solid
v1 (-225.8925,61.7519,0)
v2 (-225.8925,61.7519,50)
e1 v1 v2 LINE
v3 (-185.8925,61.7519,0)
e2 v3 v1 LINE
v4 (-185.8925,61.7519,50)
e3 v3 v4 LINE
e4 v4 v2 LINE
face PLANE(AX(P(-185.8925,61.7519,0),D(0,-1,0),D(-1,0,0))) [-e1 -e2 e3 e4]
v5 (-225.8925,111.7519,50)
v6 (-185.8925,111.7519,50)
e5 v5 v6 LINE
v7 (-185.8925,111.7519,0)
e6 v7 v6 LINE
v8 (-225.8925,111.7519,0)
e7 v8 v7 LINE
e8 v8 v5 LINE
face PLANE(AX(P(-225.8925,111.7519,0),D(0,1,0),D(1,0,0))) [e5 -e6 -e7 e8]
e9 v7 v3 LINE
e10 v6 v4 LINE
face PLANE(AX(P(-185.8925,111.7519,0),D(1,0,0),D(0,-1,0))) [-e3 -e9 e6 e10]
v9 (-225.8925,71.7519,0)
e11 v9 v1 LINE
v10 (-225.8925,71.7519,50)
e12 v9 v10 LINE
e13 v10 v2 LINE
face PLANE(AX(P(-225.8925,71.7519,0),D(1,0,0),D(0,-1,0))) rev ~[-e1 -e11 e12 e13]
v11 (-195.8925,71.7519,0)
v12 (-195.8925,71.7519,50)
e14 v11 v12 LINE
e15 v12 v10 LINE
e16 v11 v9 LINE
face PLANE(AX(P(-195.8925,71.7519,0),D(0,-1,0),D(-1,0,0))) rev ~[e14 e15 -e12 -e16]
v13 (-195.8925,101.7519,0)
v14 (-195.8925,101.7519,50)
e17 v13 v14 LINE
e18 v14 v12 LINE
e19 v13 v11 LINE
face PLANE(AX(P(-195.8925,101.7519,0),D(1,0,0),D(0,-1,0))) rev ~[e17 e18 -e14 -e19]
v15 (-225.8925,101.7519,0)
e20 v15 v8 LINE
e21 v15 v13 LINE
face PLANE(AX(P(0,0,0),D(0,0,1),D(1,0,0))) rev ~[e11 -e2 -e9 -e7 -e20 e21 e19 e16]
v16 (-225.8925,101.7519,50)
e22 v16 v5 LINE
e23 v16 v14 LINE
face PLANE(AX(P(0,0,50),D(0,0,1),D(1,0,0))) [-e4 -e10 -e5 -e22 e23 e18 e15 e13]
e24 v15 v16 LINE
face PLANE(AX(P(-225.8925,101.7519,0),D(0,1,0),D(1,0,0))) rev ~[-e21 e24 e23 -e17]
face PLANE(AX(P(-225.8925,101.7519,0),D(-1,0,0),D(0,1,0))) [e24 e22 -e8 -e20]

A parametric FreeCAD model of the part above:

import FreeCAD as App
import Part
import Sketcher
from FreeCAD import Vector
Q = App.Units.Quantity


def add_polygon(sketch, points):
    """Adds a closed chain of lines whose ends are joined by coincident constraints."""
    first, n = sketch.GeometryCount, len(points)
    for a, b in zip(points, points[1:] + points[:1]):
        sketch.addGeometry(Part.LineSegment(App.Vector(*a, 0), App.Vector(*b, 0)), False)
    for i in range(n):
        sketch.addConstraint(Sketcher.Constraint("Coincident", first + i, 2, first + (i + 1) % n, 1))

doc = App.newDocument("Part")
body = doc.addObject("PartDesign::Body", "Body")

# Sketch on XY plane
sketch1 = body.newObject("Sketcher::SketchObject", "Sketch")
sketch1.AttachmentSupport = (doc.getObject("XY_Plane"), [""])
sketch1.MapMode = "FlatFace"
add_polygon(sketch1, [(-185.8925, 111.7519), (-225.8925, 111.7519), (-225.8925, 101.7519), (-195.8925, 101.7519), (-195.8925, 71.7519), (-225.8925, 71.7519), (-225.8925, 61.7519), (-185.8925, 61.7519)])  # lines 0-7
sketch1.addConstraint(Sketcher.Constraint("Horizontal", 0))
sketch1.addConstraint(Sketcher.Constraint("Vertical", 1))
sketch1.addConstraint(Sketcher.Constraint("Horizontal", 2))
sketch1.addConstraint(Sketcher.Constraint("Vertical", 3))
sketch1.addConstraint(Sketcher.Constraint("Horizontal", 4))
sketch1.addConstraint(Sketcher.Constraint("Vertical", 5))
sketch1.addConstraint(Sketcher.Constraint("Horizontal", 6))
sketch1.addConstraint(Sketcher.Constraint("Vertical", 7))
sketch1.addConstraint(Sketcher.Constraint("Vertical", 1, 2, 4, 2))
sketch1.addConstraint(Sketcher.Constraint("Equal", 4, 3))
sketch1.addConstraint(Sketcher.Constraint("Equal", 1, 5))
sketch1.addConstraint(Sketcher.Constraint("DistanceX", 2, 1, 2, 2, Q("30 mm")))
sketch1.addConstraint(Sketcher.Constraint("DistanceY", 1, 2, 1, 1, Q("10 mm")))
sketch1.addConstraint(Sketcher.Constraint("DistanceX", 3, 2, 6, 2, Q("10 mm")))
sketch1.addConstraint(Sketcher.Constraint("DistanceY", -1, 1, 0, 2, Q("111.752 mm")))
sketch1.addConstraint(Sketcher.Constraint("DistanceX", 0, 2, -1, 1, Q("225.8925 mm")))
pad1 = body.newObject("PartDesign::Pad", "Pad")
pad1.Profile = sketch1
pad1.Length = 50

doc.recompute()
